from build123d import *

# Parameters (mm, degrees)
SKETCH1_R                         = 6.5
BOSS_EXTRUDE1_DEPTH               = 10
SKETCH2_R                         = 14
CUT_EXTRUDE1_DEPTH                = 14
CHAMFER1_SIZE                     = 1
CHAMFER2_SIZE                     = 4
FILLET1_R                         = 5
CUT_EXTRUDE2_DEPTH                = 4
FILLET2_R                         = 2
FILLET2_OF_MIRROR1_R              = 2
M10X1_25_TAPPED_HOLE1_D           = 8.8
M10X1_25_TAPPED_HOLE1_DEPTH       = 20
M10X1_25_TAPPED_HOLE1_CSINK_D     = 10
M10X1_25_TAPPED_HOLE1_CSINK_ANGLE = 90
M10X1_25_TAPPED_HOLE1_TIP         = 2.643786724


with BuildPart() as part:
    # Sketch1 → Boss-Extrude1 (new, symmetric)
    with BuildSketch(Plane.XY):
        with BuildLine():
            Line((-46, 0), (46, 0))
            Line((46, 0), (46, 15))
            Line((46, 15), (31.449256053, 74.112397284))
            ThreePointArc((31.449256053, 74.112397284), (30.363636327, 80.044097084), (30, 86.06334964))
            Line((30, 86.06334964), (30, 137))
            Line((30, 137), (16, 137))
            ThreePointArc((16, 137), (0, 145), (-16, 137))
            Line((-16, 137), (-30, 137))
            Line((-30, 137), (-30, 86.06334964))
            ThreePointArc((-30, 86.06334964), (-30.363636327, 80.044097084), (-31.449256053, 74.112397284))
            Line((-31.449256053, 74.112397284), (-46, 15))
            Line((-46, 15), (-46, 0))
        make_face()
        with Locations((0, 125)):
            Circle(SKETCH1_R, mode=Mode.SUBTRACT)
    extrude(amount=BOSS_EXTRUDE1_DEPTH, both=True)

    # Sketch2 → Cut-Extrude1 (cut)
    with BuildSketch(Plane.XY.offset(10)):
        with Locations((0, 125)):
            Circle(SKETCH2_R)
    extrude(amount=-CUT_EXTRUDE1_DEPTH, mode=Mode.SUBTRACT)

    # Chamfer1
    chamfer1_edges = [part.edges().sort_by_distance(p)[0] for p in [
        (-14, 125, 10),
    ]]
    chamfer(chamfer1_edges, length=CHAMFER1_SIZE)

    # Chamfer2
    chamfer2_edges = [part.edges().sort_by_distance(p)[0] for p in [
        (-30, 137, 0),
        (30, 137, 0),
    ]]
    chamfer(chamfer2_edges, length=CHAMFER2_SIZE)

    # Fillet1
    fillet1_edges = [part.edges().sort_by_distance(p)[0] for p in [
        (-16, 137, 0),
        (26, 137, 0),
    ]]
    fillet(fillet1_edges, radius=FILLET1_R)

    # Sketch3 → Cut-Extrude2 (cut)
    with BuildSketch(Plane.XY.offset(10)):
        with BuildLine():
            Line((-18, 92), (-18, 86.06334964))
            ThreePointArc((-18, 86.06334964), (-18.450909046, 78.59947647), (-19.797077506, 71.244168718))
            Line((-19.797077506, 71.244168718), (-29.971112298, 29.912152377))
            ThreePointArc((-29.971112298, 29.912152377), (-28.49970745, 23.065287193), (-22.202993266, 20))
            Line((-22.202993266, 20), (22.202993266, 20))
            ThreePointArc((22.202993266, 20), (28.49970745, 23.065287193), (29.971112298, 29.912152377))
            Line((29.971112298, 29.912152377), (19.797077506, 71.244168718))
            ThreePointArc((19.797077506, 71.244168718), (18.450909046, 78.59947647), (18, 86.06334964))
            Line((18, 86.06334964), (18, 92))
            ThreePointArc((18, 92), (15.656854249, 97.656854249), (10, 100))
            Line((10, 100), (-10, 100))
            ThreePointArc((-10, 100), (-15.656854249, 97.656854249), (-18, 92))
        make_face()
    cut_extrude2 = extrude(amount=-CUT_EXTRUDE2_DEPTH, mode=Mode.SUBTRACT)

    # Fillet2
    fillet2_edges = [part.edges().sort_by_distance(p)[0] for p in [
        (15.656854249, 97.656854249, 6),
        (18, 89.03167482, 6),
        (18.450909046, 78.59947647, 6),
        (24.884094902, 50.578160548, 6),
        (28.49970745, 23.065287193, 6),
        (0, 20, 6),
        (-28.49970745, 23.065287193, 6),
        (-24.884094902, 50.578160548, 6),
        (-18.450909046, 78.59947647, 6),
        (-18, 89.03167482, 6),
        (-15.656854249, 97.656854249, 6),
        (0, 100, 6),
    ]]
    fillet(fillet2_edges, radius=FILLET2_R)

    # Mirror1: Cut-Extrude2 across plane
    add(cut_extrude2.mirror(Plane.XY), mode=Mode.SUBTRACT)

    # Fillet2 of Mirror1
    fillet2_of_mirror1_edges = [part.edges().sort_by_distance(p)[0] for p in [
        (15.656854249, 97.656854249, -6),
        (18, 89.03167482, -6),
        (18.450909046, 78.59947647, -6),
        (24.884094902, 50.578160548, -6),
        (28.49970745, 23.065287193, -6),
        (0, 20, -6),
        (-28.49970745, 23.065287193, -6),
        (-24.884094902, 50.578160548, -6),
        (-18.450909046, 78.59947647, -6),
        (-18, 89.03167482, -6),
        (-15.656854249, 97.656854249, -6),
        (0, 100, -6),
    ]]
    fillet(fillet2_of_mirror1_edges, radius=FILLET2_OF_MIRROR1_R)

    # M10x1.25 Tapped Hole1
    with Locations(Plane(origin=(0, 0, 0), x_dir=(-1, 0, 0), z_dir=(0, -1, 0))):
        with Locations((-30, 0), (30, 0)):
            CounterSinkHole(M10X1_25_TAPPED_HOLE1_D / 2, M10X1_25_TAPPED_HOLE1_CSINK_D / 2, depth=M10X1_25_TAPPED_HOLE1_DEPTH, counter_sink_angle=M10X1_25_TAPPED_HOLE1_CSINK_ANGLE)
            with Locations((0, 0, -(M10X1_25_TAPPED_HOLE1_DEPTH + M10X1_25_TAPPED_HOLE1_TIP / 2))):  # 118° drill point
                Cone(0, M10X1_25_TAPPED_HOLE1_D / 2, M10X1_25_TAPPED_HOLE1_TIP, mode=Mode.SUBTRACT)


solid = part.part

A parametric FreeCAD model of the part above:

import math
import FreeCAD as App
import Part
import Sketcher

V = App.Vector


def edges_at(feature, points):
    """Names of the edges that pass closest to the given points."""
    edges = feature.Shape.Edges
    near = lambda p: min(range(len(edges)), key=lambda i: edges[i].distToShape(Part.Vertex(*p))[0])
    return sorted({f"Edge{near(p) + 1}" for p in points})

doc = App.newDocument("Part")
params = doc.addObject("Spreadsheet::Sheet", "Params")
for row, (alias, value) in enumerate([
    ("sketch1_diameter", "13 mm"),
    ("sketch1_radius", "50 mm"),
    ("sketch1_radius2", "20 mm"),
    ("sketch1_width", "92 mm"),
    ("sketch1_width2", "14 mm"),
    ("pad1_length", "20 mm"),
    ("sketch2_diameter", "28 mm"),
    ("pocket1_length", "14 mm"),
    ("chamfer_size", "1 mm"),
    ("chamfer2_size", "4 mm"),
    ("fillet_radius", "5 mm"),
    ("sketch3_radius", "62 mm"),
    ("sketch3_radius2", "8 mm"),
    ("sketch3_width", "20 mm"),
    ("pocket2_length", "4 mm"),
    ("fillet2_radius", "2 mm"),
    ("fillet3_radius", "2 mm"),
    ("sketch4_diameter", "8.8 mm"),
    ("hole_diameter", "8.8 mm"),
    ("hole_depth", "20 mm"),
    ("hole_csink_diameter", "10 mm"),
], start=1):
    params.set(f"A{row}", alias)
    params.set(f"B{row}", "=" + value)
    params.setAlias(f"B{row}", alias)

body = doc.addObject("PartDesign::Body", "Body")

# Sketch on XY plane
sketch1 = body.newObject("Sketcher::SketchObject", "Sketch")
sketch1.AttachmentSupport = (doc.getObject("XY_Plane"), [""])
sketch1.MapMode = "FlatFace"
sketch1.addGeometry([
    Part.LineSegment(V(-46, 0, 0), V(46, 0, 0)),  # 0
    Part.LineSegment(V(46, 0, 0), V(46, 15, 0)),  # 1
    Part.LineSegment(V(46, 15, 0), V(31.449256, 74.112397, 0)),  # 2
    Part.ArcOfCircle(Part.Circle(V(80, 86.06335, 0), V(0, 0, 1), 50), math.radians(180), math.radians(193.828651)),  # 3
    Part.LineSegment(V(30, 86.06335, 0), V(30, 137, 0)),  # 4
    Part.LineSegment(V(30, 137, 0), V(16, 137, 0)),  # 5
    Part.ArcOfCircle(Part.Circle(V(0, 125, 0), V(0, 0, 1), 20), math.radians(36.869898), math.radians(143.130102)),  # 6
    Part.LineSegment(V(-16, 137, 0), V(-30, 137, 0)),  # 7
    Part.LineSegment(V(-30, 137, 0), V(-30, 86.06335, 0)),  # 8
    Part.ArcOfCircle(Part.Circle(V(-80, 86.06335, 0), V(0, 0, 1), 50), math.radians(-13.828651), math.radians(0)),  # 9
    Part.LineSegment(V(-31.449256, 74.112397, 0), V(-46, 15, 0)),  # 10
    Part.LineSegment(V(-46, 15, 0), V(-46, 0, 0)),  # 11
    Part.Circle(V(0, 125, 0), V(0, 0, 1), 6.5),  # 12
], False)
sketch1.addConstraint([
    Sketcher.Constraint("Coincident", 0, 2, 1, 1),
    Sketcher.Constraint("Coincident", 1, 2, 2, 1),
    Sketcher.Constraint("Tangent", 2, 2, 3, 2),
    Sketcher.Constraint("Tangent", 3, 1, 4, 1),
    Sketcher.Constraint("Coincident", 4, 2, 5, 1),
    Sketcher.Constraint("Coincident", 5, 2, 6, 1),
    Sketcher.Constraint("Coincident", 6, 2, 7, 1),
    Sketcher.Constraint("Coincident", 7, 2, 8, 1),
    Sketcher.Constraint("Tangent", 8, 2, 9, 2),
    Sketcher.Constraint("Tangent", 9, 1, 10, 1),
    Sketcher.Constraint("Coincident", 10, 2, 11, 1),
    Sketcher.Constraint("Coincident", 11, 2, 0, 1),
    Sketcher.Constraint("Horizontal", 0),
    Sketcher.Constraint("Vertical", 1),
    Sketcher.Constraint("Vertical", 4),
    Sketcher.Constraint("Horizontal", 5),
    Sketcher.Constraint("Horizontal", 7),
    Sketcher.Constraint("Vertical", 8),
    Sketcher.Constraint("Vertical", 11),
    Sketcher.Constraint("Coincident", 12, 3, 6, 3),
    Sketcher.Constraint("Equal", 3, 9),
    Sketcher.Constraint("Symmetric", 0, 2, 11, 2, -1, 1),
    Sketcher.Constraint("Symmetric", 3, 3, 9, 3, -2),
    Sketcher.Constraint("Symmetric", 5, 2, 6, 2, -2),
    Sketcher.Constraint("Horizontal", 2, 2, 9, 1),
    Sketcher.Constraint("Diameter", 12, 13.0),
    Sketcher.Constraint("Radius", 3, 50.0),
    Sketcher.Constraint("Radius", 6, 20.0),
    Sketcher.Constraint("DistanceX", 0, 1, 0, 2, 92.0),
    Sketcher.Constraint("DistanceX", 5, 2, 5, 1, 14.0),
    Sketcher.Constraint("DistanceY", 1, 1, 1, 2, 15.0),
    Sketcher.Constraint("DistanceX", -1, 1, 3, 3, 80.0),
    Sketcher.Constraint("DistanceY", -1, 1, 6, 3, 125.0),
    Sketcher.Constraint("DistanceY", 4, 1, 4, 2, 50.93665),
])
sketch1.setExpression("Constraints[25]", "Params.sketch1_diameter")
sketch1.setExpression("Constraints[26]", "Params.sketch1_radius")
sketch1.setExpression("Constraints[27]", "Params.sketch1_radius2")
sketch1.setExpression("Constraints[28]", "Params.sketch1_width")
sketch1.setExpression("Constraints[29]", "Params.sketch1_width2")
pad1 = body.newObject("PartDesign::Pad", "Pad")
pad1.Profile = sketch1
pad1.setExpression("Length", "Params.pad1_length")
pad1.Midplane = True

# Sketch on XY plane
sketch2 = body.newObject("Sketcher::SketchObject", "Sketch001")
sketch2.AttachmentSupport = (doc.getObject("XY_Plane"), [""])
sketch2.MapMode = "FlatFace"
sketch2.AttachmentOffset = App.Placement(V(0, 0, 10), App.Rotation())
sketch2.addGeometry(Part.Circle(V(0, 125, 0), V(0, 0, 1), 14), False)
sketch2.addConstraint([
    Sketcher.Constraint("PointOnObject", 0, 3, -2),
    Sketcher.Constraint("Diameter", 0, 28.0),
    Sketcher.Constraint("DistanceY", -1, 1, 0, 3, 125.0),
])
sketch2.setExpression("Constraints[1]", "Params.sketch2_diameter")
pocket1 = body.newObject("PartDesign::Pocket", "Pocket")
pocket1.Profile = sketch2
pocket1.setExpression("Length", "Params.pocket1_length")
doc.recompute()

chamfer = body.newObject("PartDesign::Chamfer", "Chamfer")
chamfer.Base = (pocket1, edges_at(pocket1, [(-14, 125, 10)]))
chamfer.setExpression("Size", "Params.chamfer_size")
doc.recompute()

chamfer2 = body.newObject("PartDesign::Chamfer", "Chamfer001")
chamfer2.Base = (chamfer, edges_at(chamfer, [(-30, 137, 0), (30, 137, 0)]))
chamfer2.setExpression("Size", "Params.chamfer2_size")
doc.recompute()

fillet = body.newObject("PartDesign::Fillet", "Fillet")
fillet.Base = (chamfer2, edges_at(chamfer2, [(-16, 137, 0), (26, 137, 0)]))
fillet.setExpression("Radius", "Params.fillet_radius")

# Sketch on XY plane
sketch3 = body.newObject("Sketcher::SketchObject", "Sketch002")
sketch3.AttachmentSupport = (doc.getObject("XY_Plane"), [""])
sketch3.MapMode = "FlatFace"
sketch3.AttachmentOffset = App.Placement(V(0, 0, 10), App.Rotation())
sketch3.addGeometry([
    Part.LineSegment(V(-18, 92, 0), V(-18, 86.06335, 0)),  # 0
    Part.ArcOfCircle(Part.Circle(V(-80, 86.06335, 0), V(0, 0, 1), 62), math.radians(-13.828651), math.radians(0)),  # 1
    Part.LineSegment(V(-19.797078, 71.244169, 0), V(-29.971112, 29.912152, 0)),  # 2
    Part.ArcOfCircle(Part.Circle(V(-22.202993, 28, 0), V(0, 0, 1), 8), math.radians(166.171349), math.radians(270)),  # 3
    Part.LineSegment(V(-22.202993, 20, 0), V(22.202993, 20, 0)),  # 4
    Part.ArcOfCircle(Part.Circle(V(22.202993, 28, 0), V(0, 0, 1), 8), math.radians(-90), math.radians(13.828651)),  # 5
    Part.LineSegment(V(29.971112, 29.912152, 0), V(19.797078, 71.244169, 0)),  # 6
    Part.ArcOfCircle(Part.Circle(V(80, 86.06335, 0), V(0, 0, 1), 62), math.radians(-180), math.radians(-166.171349)),  # 7
    Part.LineSegment(V(18, 86.06335, 0), V(18, 92, 0)),  # 8
    Part.ArcOfCircle(Part.Circle(V(10, 92, 0), V(0, 0, 1), 8), math.radians(0), math.radians(90)),  # 9
    Part.LineSegment(V(10, 100, 0), V(-10, 100, 0)),  # 10
    Part.ArcOfCircle(Part.Circle(V(-10, 92, 0), V(0, 0, 1), 8), math.radians(90), math.radians(180)),  # 11
], False)
sketch3.addConstraint([
    Sketcher.Constraint("Tangent", 0, 2, 1, 2),
    Sketcher.Constraint("Tangent", 1, 1, 2, 1),
    Sketcher.Constraint("Tangent", 2, 2, 3, 1),
    Sketcher.Constraint("Tangent", 3, 2, 4, 1),
    Sketcher.Constraint("Tangent", 4, 2, 5, 1),
    Sketcher.Constraint("Tangent", 5, 2, 6, 1),
    Sketcher.Constraint("Tangent", 6, 2, 7, 2),
    Sketcher.Constraint("Tangent", 7, 1, 8, 1),
    Sketcher.Constraint("Tangent", 8, 2, 9, 1),
    Sketcher.Constraint("Tangent", 9, 2, 10, 1),
    Sketcher.Constraint("Tangent", 10, 2, 11, 1),
    Sketcher.Constraint("Tangent", 11, 2, 0, 1),
    Sketcher.Constraint("Vertical", 0),
    Sketcher.Constraint("Horizontal", 4),
    Sketcher.Constraint("Vertical", 8),
    Sketcher.Constraint("Horizontal", 10),
    Sketcher.Constraint("Equal", 3, 5),
    Sketcher.Constraint("Equal", 1, 7),
    Sketcher.Constraint("Equal", 5, 9),
    Sketcher.Constraint("Equal", 9, 11),
    Sketcher.Constraint("Symmetric", 1, 3, 7, 3, -2),
    Sketcher.Constraint("Horizontal", 2, 2, 5, 2),
    Sketcher.Constraint("Radius", 1, 62.0),
    Sketcher.Constraint("Radius", 3, 8.0),
    Sketcher.Constraint("DistanceX", 10, 2, 10, 1, 20.0),
    Sketcher.Constraint("DistanceY", -1, 1, 3, 3, 28.0),
    Sketcher.Constraint("DistanceY", -1, 1, 9, 3, 92.0),
    Sketcher.Constraint("DistanceY", 0, 2, 0, 1, 5.93665),
    Sketcher.Constraint("Distance", 2, 42.565791),
])
sketch3.setExpression("Constraints[22]", "Params.sketch3_radius")
sketch3.setExpression("Constraints[23]", "Params.sketch3_radius2")
sketch3.setExpression("Constraints[24]", "Params.sketch3_width")
pocket2 = body.newObject("PartDesign::Pocket", "Pocket001")
pocket2.Profile = sketch3
pocket2.setExpression("Length", "Params.pocket2_length")
doc.recompute()

fillet2 = body.newObject("PartDesign::Fillet", "Fillet001")
fillet2.Base = (pocket2, edges_at(pocket2, [
    (15.657, 97.657, 6),
    (18, 89.032, 6),
    (18.451, 78.599, 6),
    (24.884, 50.578, 6),
    (28.5, 23.065, 6),
    (0, 20, 6),
    (-28.5, 23.065, 6),
    (-24.884, 50.578, 6),
    (-18.451, 78.599, 6),
    (-18, 89.032, 6),
    (-15.657, 97.657, 6),
    (0, 100, 6),
]))
fillet2.setExpression("Radius", "Params.fillet2_radius")
doc.recompute()

mirrored = body.newObject("PartDesign::Mirrored", "Mirrored")
mirrored.Originals = [pocket2]
mirrored.MirrorPlane = (doc.getObject("XY_Plane"), [""])
body.Tip = mirrored
doc.recompute()

fillet3 = body.newObject("PartDesign::Fillet", "Fillet002")
fillet3.Base = (mirrored, edges_at(mirrored, [
    (15.657, 97.657, -6),
    (18, 89.032, -6),
    (18.451, 78.599, -6),
    (24.884, 50.578, -6),
    (28.5, 23.065, -6),
    (0, 20, -6),
    (-28.5, 23.065, -6),
    (-24.884, 50.578, -6),
    (-18.451, 78.599, -6),
    (-18, 89.032, -6),
    (-15.657, 97.657, -6),
    (0, 100, -6),
]))
fillet3.setExpression("Radius", "Params.fillet3_radius")

# Sketch on XZ plane
sketch4 = body.newObject("Sketcher::SketchObject", "Sketch003")
sketch4.AttachmentSupport = (doc.getObject("XZ_Plane"), [""])
sketch4.MapMode = "FlatFace"
sketch4.addGeometry([
    Part.Circle(V(30, 0, 0), V(0, 0, 1), 4.4),
    Part.Circle(V(-30, 0, 0), V(0, 0, 1), 4.4),
], False)
sketch4.addConstraint([
    Sketcher.Constraint("Equal", 0, 1),
    Sketcher.Constraint("Symmetric", 0, 3, 1, 3, -1, 1),
    Sketcher.Constraint("PointOnObject", 0, 3, -1),
    Sketcher.Constraint("Diameter", 0, 8.8),
    Sketcher.Constraint("DistanceX", -1, 1, 0, 3, 30.0),
])
sketch4.setExpression("Constraints[3]", "Params.sketch4_diameter")
doc.recompute()
hole = body.newObject("PartDesign::Hole", "Hole")
hole.Profile = sketch4
hole.ThreadType = "None"
hole.setExpression("Diameter", "Params.hole_diameter")
hole.DepthType = "Dimension"
hole.setExpression("Depth", "Params.hole_depth")
hole.DrillPoint = "Angled"
hole.DrillPointAngle = 118
hole.HoleCutType = "Countersink"
hole.setExpression("HoleCutDiameter", "Params.hole_csink_diameter")
hole.HoleCutCountersinkAngle = 90

doc.recompute()
